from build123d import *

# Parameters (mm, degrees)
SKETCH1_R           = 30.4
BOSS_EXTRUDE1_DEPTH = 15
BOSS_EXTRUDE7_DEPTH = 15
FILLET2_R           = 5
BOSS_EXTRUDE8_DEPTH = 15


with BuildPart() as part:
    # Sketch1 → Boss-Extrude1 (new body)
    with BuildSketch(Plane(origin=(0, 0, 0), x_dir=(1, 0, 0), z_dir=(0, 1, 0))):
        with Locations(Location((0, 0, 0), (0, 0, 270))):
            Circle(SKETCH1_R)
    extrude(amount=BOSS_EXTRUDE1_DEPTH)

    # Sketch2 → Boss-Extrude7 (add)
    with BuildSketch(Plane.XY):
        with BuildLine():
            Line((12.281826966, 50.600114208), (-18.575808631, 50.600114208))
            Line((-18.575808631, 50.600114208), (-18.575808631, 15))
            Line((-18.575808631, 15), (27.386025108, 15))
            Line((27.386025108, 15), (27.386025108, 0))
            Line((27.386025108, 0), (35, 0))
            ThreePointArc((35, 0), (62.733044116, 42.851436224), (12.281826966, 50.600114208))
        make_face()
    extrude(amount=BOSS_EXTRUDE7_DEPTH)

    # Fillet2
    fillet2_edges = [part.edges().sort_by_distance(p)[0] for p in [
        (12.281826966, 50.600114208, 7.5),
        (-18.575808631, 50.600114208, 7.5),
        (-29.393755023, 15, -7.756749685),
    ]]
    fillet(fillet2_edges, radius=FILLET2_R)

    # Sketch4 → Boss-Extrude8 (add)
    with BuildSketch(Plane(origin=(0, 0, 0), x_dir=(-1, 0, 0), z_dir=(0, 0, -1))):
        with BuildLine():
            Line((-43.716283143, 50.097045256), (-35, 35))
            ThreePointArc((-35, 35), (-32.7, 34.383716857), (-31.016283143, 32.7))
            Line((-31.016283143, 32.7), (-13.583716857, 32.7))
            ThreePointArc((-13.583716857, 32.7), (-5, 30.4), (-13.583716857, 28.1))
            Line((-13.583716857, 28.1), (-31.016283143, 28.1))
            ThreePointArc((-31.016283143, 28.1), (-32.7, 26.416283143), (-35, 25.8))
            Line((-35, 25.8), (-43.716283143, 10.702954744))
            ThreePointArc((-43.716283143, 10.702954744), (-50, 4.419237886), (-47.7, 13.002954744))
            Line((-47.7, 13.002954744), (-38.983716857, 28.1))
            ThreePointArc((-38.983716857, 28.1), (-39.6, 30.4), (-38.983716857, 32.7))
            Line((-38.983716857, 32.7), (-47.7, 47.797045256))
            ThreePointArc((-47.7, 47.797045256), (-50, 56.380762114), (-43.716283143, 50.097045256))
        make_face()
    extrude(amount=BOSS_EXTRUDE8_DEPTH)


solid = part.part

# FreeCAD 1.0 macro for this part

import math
import FreeCAD as App
import Part
import Sketcher
Q = App.Units.Quantity


def edges_at(feature, points):
    """Names of the edges that pass closest to the given points."""
    edges = feature.Shape.Edges
    near = lambda p: min(range(len(edges)), key=lambda i: edges[i].distToShape(Part.Vertex(*p))[0])
    return sorted({f"Edge{near(p) + 1}" for p in points})

doc = App.newDocument("Part")
body = doc.addObject("PartDesign::Body", "Body")

# Sketch on XZ plane
sketch1 = body.newObject("Sketcher::SketchObject", "Sketch")
sketch1.AttachmentSupport = (doc.getObject("XZ_Plane"), [""])
sketch1.MapMode = "FlatFace"
sketch1.addGeometry(Part.Circle(App.Vector(0, 0, 0), App.Vector(0, 0, 1), 30.4), False)
sketch1.addConstraint(Sketcher.Constraint("Coincident", 0, 3, -1, 1))
sketch1.addConstraint(Sketcher.Constraint("Diameter", 0, 60.8))
pad1 = body.newObject("PartDesign::Pad", "Pad")
pad1.Profile = sketch1
pad1.Length = 15
pad1.Reversed = True

# Sketch on XY plane
sketch2 = body.newObject("Sketcher::SketchObject", "Sketch001")
sketch2.AttachmentSupport = (doc.getObject("XY_Plane"), [""])
sketch2.MapMode = "FlatFace"
sketch2.addGeometry(Part.LineSegment(App.Vector(12.281827, 50.600114, 0), App.Vector(-18.575809, 50.600114, 0)), False)
sketch2.addGeometry(Part.LineSegment(App.Vector(-18.575809, 50.600114, 0), App.Vector(-18.575809, 15, 0)), False)
sketch2.addGeometry(Part.LineSegment(App.Vector(-18.575809, 15, 0), App.Vector(27.386025, 15, 0)), False)
sketch2.addGeometry(Part.LineSegment(App.Vector(27.386025, 15, 0), App.Vector(27.386025, 0, 0)), False)
sketch2.addGeometry(Part.LineSegment(App.Vector(27.386025, 0, 0), App.Vector(35, 0, 0)), False)
sketch2.addGeometry(Part.ArcOfCircle(Part.Circle(App.Vector(35, 30.4, 0), App.Vector(0, 0, 1), 30.4), math.radians(-90), math.radians(138.357751)), False)
sketch2.addConstraint(Sketcher.Constraint("Coincident", 0, 2, 1, 1))
sketch2.addConstraint(Sketcher.Constraint("Coincident", 1, 2, 2, 1))
sketch2.addConstraint(Sketcher.Constraint("Coincident", 2, 2, 3, 1))
sketch2.addConstraint(Sketcher.Constraint("Coincident", 3, 2, 4, 1))
sketch2.addConstraint(Sketcher.Constraint("Tangent", 4, 2, 5, 1))
sketch2.addConstraint(Sketcher.Constraint("Coincident", 5, 2, 0, 1))
sketch2.addConstraint(Sketcher.Constraint("Horizontal", 0))
sketch2.addConstraint(Sketcher.Constraint("Vertical", 1))
sketch2.addConstraint(Sketcher.Constraint("Horizontal", 2))
sketch2.addConstraint(Sketcher.Constraint("Vertical", 3))
sketch2.addConstraint(Sketcher.Constraint("Horizontal", 4))
sketch2.addConstraint(Sketcher.Constraint("PointOnObject", 3, 2, -1))
sketch2.addConstraint(Sketcher.Constraint("Radius", 5, 30.4))
sketch2.addConstraint(Sketcher.Constraint("DistanceY", 3, 2, 3, 1, 15.0))
sketch2.addConstraint(Sketcher.Constraint("DistanceX", -1, 1, 5, 3, 35.0))
sketch2.addConstraint(Sketcher.Constraint("DistanceX", 5, 2, 2, 2, 15.104198))
sketch2.addConstraint(Sketcher.Constraint("DistanceX", 0, 2, 0, 1, 30.857636))
sketch2.addConstraint(Sketcher.Constraint("DistanceX", 4, 1, 4, 2, 7.613975))
pad2 = body.newObject("PartDesign::Pad", "Pad001")
pad2.Profile = sketch2
pad2.Length = 15
doc.recompute()

fillet = body.newObject("PartDesign::Fillet", "Fillet")
fillet.Base = (pad2, edges_at(pad2, [(12.282, 50.6, 7.5), (-18.576, 50.6, 7.5), (-29.394, 15, -7.757)]))
fillet.Radius = 5

# Sketch on XY plane
sketch3 = body.newObject("Sketcher::SketchObject", "Sketch002")
sketch3.AttachmentSupport = (doc.getObject("XY_Plane"), [""])
sketch3.MapMode = "FlatFace"
sketch3.addGeometry(Part.LineSegment(App.Vector(35, 35, 0), App.Vector(43.716283, 50.097045, 0)), False)
sketch3.addGeometry(Part.ArcOfCircle(Part.Circle(App.Vector(47.7, 52.397045, 0), App.Vector(0, 0, 1), 4.6), math.radians(-90), math.radians(210)), False)
sketch3.addGeometry(Part.LineSegment(App.Vector(47.7, 47.797045, 0), App.Vector(38.983717, 32.7, 0)), False)
sketch3.addGeometry(Part.ArcOfCircle(Part.Circle(App.Vector(35, 30.4, 0), App.Vector(0, 0, 1), 4.6), math.radians(-30), math.radians(30)), False)
sketch3.addGeometry(Part.LineSegment(App.Vector(38.983717, 28.1, 0), App.Vector(47.7, 13.002955, 0)), False)
sketch3.addGeometry(Part.ArcOfCircle(Part.Circle(App.Vector(47.7, 8.402955, 0), App.Vector(0, 0, 1), 4.6), math.radians(150), math.radians(450)), False)
sketch3.addGeometry(Part.LineSegment(App.Vector(43.716283, 10.702955, 0), App.Vector(35, 25.8, 0)), False)
sketch3.addGeometry(Part.ArcOfCircle(Part.Circle(App.Vector(35, 30.4, 0), App.Vector(0, 0, 1), 4.6), math.radians(-150), math.radians(-90)), False)
sketch3.addGeometry(Part.LineSegment(App.Vector(31.016283, 28.1, 0), App.Vector(13.583717, 28.1, 0)), False)
sketch3.addGeometry(Part.ArcOfCircle(Part.Circle(App.Vector(9.6, 30.4, 0), App.Vector(0, 0, 1), 4.6), math.radians(30), math.radians(330)), False)
sketch3.addGeometry(Part.LineSegment(App.Vector(13.583717, 32.7, 0), App.Vector(31.016283, 32.7, 0)), False)
sketch3.addGeometry(Part.ArcOfCircle(Part.Circle(App.Vector(35, 30.4, 0), App.Vector(0, 0, 1), 4.6), math.radians(90), math.radians(150)), False)
sketch3.addConstraint(Sketcher.Constraint("Coincident", 0, 2, 1, 2))
sketch3.addConstraint(Sketcher.Constraint("Coincident", 1, 1, 2, 1))
sketch3.addConstraint(Sketcher.Constraint("Coincident", 2, 2, 3, 2))
sketch3.addConstraint(Sketcher.Constraint("Coincident", 3, 1, 4, 1))
sketch3.addConstraint(Sketcher.Constraint("Coincident", 4, 2, 5, 2))
sketch3.addConstraint(Sketcher.Constraint("Coincident", 5, 1, 6, 1))
sketch3.addConstraint(Sketcher.Constraint("Coincident", 6, 2, 7, 2))
sketch3.addConstraint(Sketcher.Constraint("Coincident", 7, 1, 8, 1))
sketch3.addConstraint(Sketcher.Constraint("Coincident", 8, 2, 9, 2))
sketch3.addConstraint(Sketcher.Constraint("Coincident", 9, 1, 10, 1))
sketch3.addConstraint(Sketcher.Constraint("Coincident", 10, 2, 11, 2))
sketch3.addConstraint(Sketcher.Constraint("Coincident", 11, 1, 0, 1))
sketch3.addConstraint(Sketcher.Constraint("Horizontal", 8))
sketch3.addConstraint(Sketcher.Constraint("Horizontal", 10))
sketch3.addConstraint(Sketcher.Constraint("Coincident", 7, 3, 3, 3))
sketch3.addConstraint(Sketcher.Constraint("Coincident", 11, 3, 3, 3))
sketch3.addConstraint(Sketcher.Constraint("Equal", 1, 3))
sketch3.addConstraint(Sketcher.Constraint("Equal", 3, 5))
sketch3.addConstraint(Sketcher.Constraint("Equal", 5, 7))
sketch3.addConstraint(Sketcher.Constraint("Equal", 7, 9))
sketch3.addConstraint(Sketcher.Constraint("Equal", 9, 11))
sketch3.addConstraint(Sketcher.Constraint("Parallel", 0, 2))
sketch3.addConstraint(Sketcher.Constraint("Parallel", 4, 6))
sketch3.addConstraint(Sketcher.Constraint("Horizontal", 7, 3, 9, 3))
sketch3.addConstraint(Sketcher.Constraint("Horizontal", 3, 1, 7, 1))
sketch3.addConstraint(Sketcher.Constraint("Horizontal", 2, 2, 9, 1))
sketch3.addConstraint(Sketcher.Constraint("Vertical", 1, 3, 5, 3))
sketch3.addConstraint(Sketcher.Constraint("Vertical", 5, 3, 1, 1))
sketch3.addConstraint(Sketcher.Constraint("Vertical", 2, 2, 3, 1))
sketch3.addConstraint(Sketcher.Constraint("Vertical", 1, 1, 4, 2))
sketch3.addConstraint(Sketcher.Constraint("Vertical", 0, 2, 5, 1))
sketch3.addConstraint(Sketcher.Constraint("Vertical", 11, 3, 6, 2))
sketch3.addConstraint(Sketcher.Constraint("Equal", 2, 4))
sketch3.addConstraint(Sketcher.Constraint("Radius", 1, 4.6))
sketch3.addConstraint(Sketcher.Constraint("Angle", 0, Q("60 deg")))
sketch3.addConstraint(Sketcher.Constraint("DistanceX", -1, 1, 3, 3, 35.0))
sketch3.addConstraint(Sketcher.Constraint("DistanceY", -1, 1, 11, 1, 35.0))
sketch3.addConstraint(Sketcher.Constraint("DistanceX", -1, 1, 1, 3, 47.7))
sketch3.addConstraint(Sketcher.Constraint("DistanceX", -1, 1, 9, 3, 9.6))
sketch3.addConstraint(Sketcher.Constraint("DistanceY", -1, 1, 2, 2, 32.7))
pad3 = body.newObject("PartDesign::Pad", "Pad002")
pad3.Profile = sketch3
pad3.Length = 15
pad3.Reversed = True

doc.recompute()
